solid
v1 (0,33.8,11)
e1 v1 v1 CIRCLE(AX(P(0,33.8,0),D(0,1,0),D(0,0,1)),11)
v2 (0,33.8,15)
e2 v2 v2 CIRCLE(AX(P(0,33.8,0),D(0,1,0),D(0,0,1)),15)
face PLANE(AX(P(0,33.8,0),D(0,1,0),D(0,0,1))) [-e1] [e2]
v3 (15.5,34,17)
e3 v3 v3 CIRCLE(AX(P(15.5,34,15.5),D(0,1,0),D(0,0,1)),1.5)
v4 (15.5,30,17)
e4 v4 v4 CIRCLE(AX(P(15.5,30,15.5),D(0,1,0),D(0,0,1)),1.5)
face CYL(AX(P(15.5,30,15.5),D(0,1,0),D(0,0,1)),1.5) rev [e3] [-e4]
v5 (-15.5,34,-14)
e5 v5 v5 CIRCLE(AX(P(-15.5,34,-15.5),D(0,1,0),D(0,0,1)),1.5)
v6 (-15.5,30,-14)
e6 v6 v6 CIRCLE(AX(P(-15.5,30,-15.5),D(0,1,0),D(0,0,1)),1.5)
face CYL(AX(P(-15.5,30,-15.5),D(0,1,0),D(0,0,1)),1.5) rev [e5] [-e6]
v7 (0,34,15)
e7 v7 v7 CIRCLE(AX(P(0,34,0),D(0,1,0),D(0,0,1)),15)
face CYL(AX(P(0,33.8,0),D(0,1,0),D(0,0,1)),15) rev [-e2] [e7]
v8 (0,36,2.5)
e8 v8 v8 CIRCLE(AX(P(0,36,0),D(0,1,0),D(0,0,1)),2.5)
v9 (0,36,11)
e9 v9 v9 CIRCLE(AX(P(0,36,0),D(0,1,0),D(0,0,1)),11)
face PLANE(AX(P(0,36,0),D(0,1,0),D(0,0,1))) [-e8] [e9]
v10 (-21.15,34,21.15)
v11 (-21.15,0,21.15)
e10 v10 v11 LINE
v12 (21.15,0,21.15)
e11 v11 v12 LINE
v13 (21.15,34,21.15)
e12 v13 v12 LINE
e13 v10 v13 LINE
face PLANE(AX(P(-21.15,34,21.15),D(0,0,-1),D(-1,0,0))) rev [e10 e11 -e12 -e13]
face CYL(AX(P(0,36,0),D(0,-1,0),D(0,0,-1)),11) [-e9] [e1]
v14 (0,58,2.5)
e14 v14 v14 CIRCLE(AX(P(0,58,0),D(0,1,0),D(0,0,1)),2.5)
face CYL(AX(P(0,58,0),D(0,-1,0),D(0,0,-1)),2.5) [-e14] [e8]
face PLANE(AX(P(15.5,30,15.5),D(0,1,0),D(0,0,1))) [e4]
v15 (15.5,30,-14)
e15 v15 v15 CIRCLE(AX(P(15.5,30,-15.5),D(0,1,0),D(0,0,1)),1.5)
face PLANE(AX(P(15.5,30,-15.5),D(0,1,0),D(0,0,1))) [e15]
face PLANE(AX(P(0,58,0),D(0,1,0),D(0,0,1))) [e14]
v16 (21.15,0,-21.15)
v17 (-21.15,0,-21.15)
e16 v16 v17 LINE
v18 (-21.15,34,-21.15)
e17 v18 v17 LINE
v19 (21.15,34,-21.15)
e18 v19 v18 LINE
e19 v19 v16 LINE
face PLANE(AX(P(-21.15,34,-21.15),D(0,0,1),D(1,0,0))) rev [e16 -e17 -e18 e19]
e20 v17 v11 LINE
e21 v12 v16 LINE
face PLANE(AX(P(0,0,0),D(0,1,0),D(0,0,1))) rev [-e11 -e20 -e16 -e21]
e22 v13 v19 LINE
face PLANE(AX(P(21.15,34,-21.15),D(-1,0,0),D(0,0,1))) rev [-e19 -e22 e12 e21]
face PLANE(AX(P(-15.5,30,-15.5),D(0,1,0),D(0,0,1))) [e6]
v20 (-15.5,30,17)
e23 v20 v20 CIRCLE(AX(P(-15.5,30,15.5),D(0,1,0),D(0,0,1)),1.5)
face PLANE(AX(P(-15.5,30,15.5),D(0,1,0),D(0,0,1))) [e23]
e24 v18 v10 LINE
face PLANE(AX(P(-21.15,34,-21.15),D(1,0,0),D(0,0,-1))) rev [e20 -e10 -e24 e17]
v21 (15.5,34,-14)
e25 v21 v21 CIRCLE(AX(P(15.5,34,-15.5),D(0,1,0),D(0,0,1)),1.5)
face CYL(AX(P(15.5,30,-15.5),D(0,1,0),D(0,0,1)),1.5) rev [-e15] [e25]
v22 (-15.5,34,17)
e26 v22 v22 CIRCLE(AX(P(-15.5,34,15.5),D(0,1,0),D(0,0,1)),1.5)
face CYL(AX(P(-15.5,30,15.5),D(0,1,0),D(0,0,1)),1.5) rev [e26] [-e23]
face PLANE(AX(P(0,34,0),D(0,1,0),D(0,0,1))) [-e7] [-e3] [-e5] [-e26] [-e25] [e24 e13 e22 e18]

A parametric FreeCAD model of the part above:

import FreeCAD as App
import Part
import Sketcher

V = App.Vector
Q = App.Units.Quantity

doc = App.newDocument("Part")
body = doc.addObject("PartDesign::Body", "Body")

sketch1 = body.newObject("Sketcher::SketchObject", "Sketch")
sketch1.AttachmentSupport = (doc.getObject("XZ_Plane"), [""])
sketch1.MapMode = "FlatFace"
sketch1.addGeometry(Part.LineSegment(V(-21, -21, 0), V(-21, 21, 0)), False)
sketch1.addGeometry(Part.LineSegment(V(-21, 21, 0), V(21, 21, 0)), False)
sketch1.addGeometry(Part.LineSegment(V(21, 21, 0), V(21, -21, 0)), False)
sketch1.addGeometry(Part.LineSegment(V(21, -21, 0), V(-21, -21, 0)), False)
sketch1.addConstraint(Sketcher.Constraint("Coincident", 0, 2, 1, 1))
sketch1.addConstraint(Sketcher.Constraint("Coincident", 1, 2, 2, 1))
sketch1.addConstraint(Sketcher.Constraint("Coincident", 2, 2, 3, 1))
sketch1.addConstraint(Sketcher.Constraint("Coincident", 3, 2, 0, 1))
sketch1.addConstraint(Sketcher.Constraint("Vertical", 0))
sketch1.addConstraint(Sketcher.Constraint("Horizontal", 1))
sketch1.addConstraint(Sketcher.Constraint("Vertical", 2))
sketch1.addConstraint(Sketcher.Constraint("Horizontal", 3))
sketch1.addConstraint(Sketcher.Constraint("Symmetric", 0, 2, 2, 2, -1, 1))
sketch1.addConstraint(Sketcher.Constraint("Equal", 3, 0))
sketch1.addConstraint(Sketcher.Constraint("DistanceX", 1, 1, 1, 2, Q("42.3 mm")))
pad1 = body.newObject("PartDesign::Pad", "Pad")
pad1.Profile = sketch1
pad1.Length = 34
pad1.Reversed = True

sketch2 = body.newObject("Sketcher::SketchObject", "Sketch001")
sketch2.AttachmentSupport = (doc.getObject("XZ_Plane"), [""])
sketch2.MapMode = "FlatFace"
sketch2.AttachmentOffset = App.Placement(V(0, 0, -34), App.Rotation())
sketch2.addGeometry(Part.Circle(V(-15.5, -15.5, 0), V(0, 0, 1), 1.5), False)
sketch2.addGeometry(Part.Circle(V(15.5, -15.5, 0), V(0, 0, 1), 1.5), False)
sketch2.addGeometry(Part.Circle(V(15.5, 15.5, 0), V(0, 0, 1), 1.5), False)
sketch2.addGeometry(Part.Circle(V(-15.5, 15.5, 0), V(0, 0, 1), 1.5), False)
sketch2.addConstraint(Sketcher.Constraint("Equal", 0, 1))
sketch2.addConstraint(Sketcher.Constraint("Equal", 1, 2))
sketch2.addConstraint(Sketcher.Constraint("Equal", 2, 3))
sketch2.addConstraint(Sketcher.Constraint("Symmetric", 0, 3, 2, 3, -1, 1))
sketch2.addConstraint(Sketcher.Constraint("Symmetric", 1, 3, 3, 3, -1, 1))
sketch2.addConstraint(Sketcher.Constraint("Symmetric", 0, 3, 1, 3, -2))
sketch2.addConstraint(Sketcher.Constraint("Diameter", 0, Q("3 mm")))
sketch2.addConstraint(Sketcher.Constraint("DistanceX", 0, 3, 1, 3, Q("31 mm")))
sketch2.addConstraint(Sketcher.Constraint("DistanceY", 1, 3, 2, 3, Q("31 mm")))
pocket1 = body.newObject("PartDesign::Pocket", "Pocket")
pocket1.Profile = sketch2
pocket1.Length = 4
pocket1.Reversed = True

sketch3 = body.newObject("Sketcher::SketchObject", "Sketch002")
sketch3.AttachmentSupport = (doc.getObject("XZ_Plane"), [""])
sketch3.MapMode = "FlatFace"
sketch3.AttachmentOffset = App.Placement(V(0, 0, -34), App.Rotation())
sketch3.addGeometry(Part.Circle(V(0, 0, 0), V(0, 0, 1), 11), False)
sketch3.addConstraint(Sketcher.Constraint("Coincident", 0, 3, -1, 1))
sketch3.addConstraint(Sketcher.Constraint("Diameter", 0, Q("22 mm")))
pad2 = body.newObject("PartDesign::Pad", "Pad001")
pad2.Profile = sketch3
pad2.Length = 2
pad2.Reversed = True

sketch4 = body.newObject("Sketcher::SketchObject", "Sketch003")
sketch4.AttachmentSupport = (doc.getObject("XZ_Plane"), [""])
sketch4.MapMode = "FlatFace"
sketch4.AttachmentOffset = App.Placement(V(0, 0, -36), App.Rotation())
sketch4.addGeometry(Part.Circle(V(0, 0, 0), V(0, 0, 1), 2.5), False)
sketch4.addConstraint(Sketcher.Constraint("Coincident", 0, 3, -1, 1))
sketch4.addConstraint(Sketcher.Constraint("Diameter", 0, Q("5 mm")))
pad3 = body.newObject("PartDesign::Pad", "Pad002")
pad3.Profile = sketch4
pad3.Length = 22
pad3.Reversed = True

sketch5 = body.newObject("Sketcher::SketchObject", "Sketch004")
sketch5.AttachmentSupport = (doc.getObject("XZ_Plane"), [""])
sketch5.MapMode = "FlatFace"
sketch5.AttachmentOffset = App.Placement(V(0, 0, -33.8), App.Rotation())
sketch5.addGeometry(Part.Circle(V(0, 0, 0), V(0, 0, 1), 15), False)
sketch5.addGeometry(Part.Circle(V(0, 0, 0), V(0, 0, 1), 11), False)
sketch5.addConstraint(Sketcher.Constraint("Coincident", 0, 3, -1, 1))
sketch5.addConstraint(Sketcher.Constraint("Coincident", 1, 3, -1, 1))
sketch5.addConstraint(Sketcher.Constraint("Diameter", 0, Q("30 mm")))
sketch5.addConstraint(Sketcher.Constraint("Diameter", 1, Q("22 mm")))
pocket2 = body.newObject("PartDesign::Pocket", "Pocket001")
pocket2.Profile = sketch5
pocket2.Length = 0.2

doc.recompute()
